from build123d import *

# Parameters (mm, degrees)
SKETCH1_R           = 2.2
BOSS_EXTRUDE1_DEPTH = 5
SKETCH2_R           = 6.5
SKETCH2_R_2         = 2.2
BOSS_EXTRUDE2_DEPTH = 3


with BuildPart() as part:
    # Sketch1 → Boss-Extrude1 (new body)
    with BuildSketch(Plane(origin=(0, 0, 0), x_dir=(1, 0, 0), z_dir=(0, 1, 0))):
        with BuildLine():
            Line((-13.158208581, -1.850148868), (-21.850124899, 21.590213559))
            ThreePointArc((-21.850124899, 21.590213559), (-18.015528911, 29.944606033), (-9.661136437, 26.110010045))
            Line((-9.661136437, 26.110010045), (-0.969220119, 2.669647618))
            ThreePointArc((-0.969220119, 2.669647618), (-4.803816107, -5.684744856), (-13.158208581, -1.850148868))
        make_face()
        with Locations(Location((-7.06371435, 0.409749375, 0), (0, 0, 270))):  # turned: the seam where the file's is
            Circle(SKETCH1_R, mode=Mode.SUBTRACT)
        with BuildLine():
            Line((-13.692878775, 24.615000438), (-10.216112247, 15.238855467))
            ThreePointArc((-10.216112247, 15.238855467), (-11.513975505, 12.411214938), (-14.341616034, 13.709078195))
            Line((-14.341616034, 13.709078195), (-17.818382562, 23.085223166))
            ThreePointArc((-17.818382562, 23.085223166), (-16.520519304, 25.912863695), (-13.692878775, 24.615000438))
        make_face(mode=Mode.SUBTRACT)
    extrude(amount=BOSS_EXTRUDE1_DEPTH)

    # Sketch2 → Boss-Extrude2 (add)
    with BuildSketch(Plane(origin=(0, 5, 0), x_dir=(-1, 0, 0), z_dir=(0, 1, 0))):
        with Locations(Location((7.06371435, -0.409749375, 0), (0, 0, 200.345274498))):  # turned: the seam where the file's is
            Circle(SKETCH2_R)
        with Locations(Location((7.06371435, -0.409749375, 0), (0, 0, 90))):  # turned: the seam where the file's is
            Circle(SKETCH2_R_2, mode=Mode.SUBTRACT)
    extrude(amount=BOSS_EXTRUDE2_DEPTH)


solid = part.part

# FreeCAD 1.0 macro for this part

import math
import FreeCAD as App
import Part
import Sketcher
from FreeCAD import Vector
Q = App.Units.Quantity

doc = App.newDocument("Part")
body = doc.addObject("PartDesign::Body", "Body")

sketch1 = body.newObject("Sketcher::SketchObject", "Sketch")
sketch1.AttachmentSupport = (doc.getObject("XZ_Plane"), [""])
sketch1.MapMode = "FlatFace"
sketch1.addGeometry([
    Part.LineSegment(Vector(-21.9, -21.6, 0), Vector(-13.2, 1.9, 0)),
    Part.ArcOfCircle(Part.Circle(Vector(-7.1, -0.4, 0), Vector(0, 0, 1), 6.5), math.radians(-20), math.radians(160)),
    Part.LineSegment(Vector(-1, -2.7, 0), Vector(-9.7, -26.1, 0)),
    Part.ArcOfCircle(Part.Circle(Vector(-15.8, -23.9, 0), Vector(0, 0, 1), 6.5), math.radians(160), math.radians(340)),
    Part.Circle(Vector(-7.1, -0.4, 0), Vector(0, 0, 1), 2.2),
    Part.LineSegment(Vector(-13.7, -24.6, 0), Vector(-10.2, -15.2, 0)),
    Part.ArcOfCircle(Part.Circle(Vector(-12.3, -14.5, 0), Vector(0, 0, 1), 2.2), math.radians(-20), math.radians(160)),
    Part.LineSegment(Vector(-14.3, -13.7, 0), Vector(-17.8, -23.1, 0)),
    Part.ArcOfCircle(Part.Circle(Vector(-15.8, -23.9, 0), Vector(0, 0, 1), 2.2), math.radians(160), math.radians(340)),
], False)
sketch1.addConstraint([
    Sketcher.Constraint("Tangent", 0, 2, 1, 2),
    Sketcher.Constraint("Tangent", 1, 1, 2, 1),
    Sketcher.Constraint("Tangent", 2, 2, 3, 2),
    Sketcher.Constraint("Tangent", 3, 1, 0, 1),
    Sketcher.Constraint("Tangent", 5, 2, 6, 1),
    Sketcher.Constraint("Tangent", 6, 2, 7, 1),
    Sketcher.Constraint("Tangent", 7, 2, 8, 1),
    Sketcher.Constraint("Tangent", 8, 2, 5, 1),
    Sketcher.Constraint("Coincident", 4, 3, 1, 3),
    Sketcher.Constraint("Coincident", 8, 3, 3, 3),
    Sketcher.Constraint("Equal", 1, 3),
    Sketcher.Constraint("Equal", 4, 6),
    Sketcher.Constraint("Equal", 6, 8),
    Sketcher.Constraint("Parallel", 2, 5),
    Sketcher.Constraint("Diameter", 4, Q("4.4 mm")),
    Sketcher.Constraint("Radius", 1, Q("6.5 mm")),
    Sketcher.Constraint("Distance", 0, Q("25 mm")),
    Sketcher.Constraint("Distance", 5, Q("10 mm")),
    Sketcher.Constraint("DistanceY", 8, 2, -1, 1, Q("24.615 mm")),
    Sketcher.Constraint("DistanceY", 1, 3, 0, 2, Q("2.259898 mm")),
    Sketcher.Constraint("DistanceX", 3, 3, -1, 1, Q("15.755631 mm")),
])
pad1 = body.newObject("PartDesign::Pad", "Pad")
pad1.Profile = sketch1
pad1.Length = 5
pad1.Reversed = True

sketch2 = body.newObject("Sketcher::SketchObject", "Sketch001")
sketch2.AttachmentSupport = (doc.getObject("XZ_Plane"), [""])
sketch2.MapMode = "FlatFace"
sketch2.AttachmentOffset = App.Placement(Vector(0, 0, -5), App.Rotation())
sketch2.addGeometry([
    Part.Circle(Vector(-7.1, -0.4, 0), Vector(0, 0, 1), 6.5),
    Part.Circle(Vector(-7.1, -0.4, 0), Vector(0, 0, 1), 2.2),
], False)
sketch2.addConstraint([
    Sketcher.Constraint("Coincident", 1, 3, 0, 3),
    Sketcher.Constraint("Diameter", 0, Q("13 mm")),
    Sketcher.Constraint("Diameter", 1, Q("4.4 mm")),
    Sketcher.Constraint("DistanceY", 0, 3, -1, 1, Q("0.409749 mm")),
    Sketcher.Constraint("DistanceX", 0, 3, -1, 1, Q("7.063714 mm")),
])
pad2 = body.newObject("PartDesign::Pad", "Pad001")
pad2.Profile = sketch2
pad2.Length = 3
pad2.Reversed = True

doc.recompute()
